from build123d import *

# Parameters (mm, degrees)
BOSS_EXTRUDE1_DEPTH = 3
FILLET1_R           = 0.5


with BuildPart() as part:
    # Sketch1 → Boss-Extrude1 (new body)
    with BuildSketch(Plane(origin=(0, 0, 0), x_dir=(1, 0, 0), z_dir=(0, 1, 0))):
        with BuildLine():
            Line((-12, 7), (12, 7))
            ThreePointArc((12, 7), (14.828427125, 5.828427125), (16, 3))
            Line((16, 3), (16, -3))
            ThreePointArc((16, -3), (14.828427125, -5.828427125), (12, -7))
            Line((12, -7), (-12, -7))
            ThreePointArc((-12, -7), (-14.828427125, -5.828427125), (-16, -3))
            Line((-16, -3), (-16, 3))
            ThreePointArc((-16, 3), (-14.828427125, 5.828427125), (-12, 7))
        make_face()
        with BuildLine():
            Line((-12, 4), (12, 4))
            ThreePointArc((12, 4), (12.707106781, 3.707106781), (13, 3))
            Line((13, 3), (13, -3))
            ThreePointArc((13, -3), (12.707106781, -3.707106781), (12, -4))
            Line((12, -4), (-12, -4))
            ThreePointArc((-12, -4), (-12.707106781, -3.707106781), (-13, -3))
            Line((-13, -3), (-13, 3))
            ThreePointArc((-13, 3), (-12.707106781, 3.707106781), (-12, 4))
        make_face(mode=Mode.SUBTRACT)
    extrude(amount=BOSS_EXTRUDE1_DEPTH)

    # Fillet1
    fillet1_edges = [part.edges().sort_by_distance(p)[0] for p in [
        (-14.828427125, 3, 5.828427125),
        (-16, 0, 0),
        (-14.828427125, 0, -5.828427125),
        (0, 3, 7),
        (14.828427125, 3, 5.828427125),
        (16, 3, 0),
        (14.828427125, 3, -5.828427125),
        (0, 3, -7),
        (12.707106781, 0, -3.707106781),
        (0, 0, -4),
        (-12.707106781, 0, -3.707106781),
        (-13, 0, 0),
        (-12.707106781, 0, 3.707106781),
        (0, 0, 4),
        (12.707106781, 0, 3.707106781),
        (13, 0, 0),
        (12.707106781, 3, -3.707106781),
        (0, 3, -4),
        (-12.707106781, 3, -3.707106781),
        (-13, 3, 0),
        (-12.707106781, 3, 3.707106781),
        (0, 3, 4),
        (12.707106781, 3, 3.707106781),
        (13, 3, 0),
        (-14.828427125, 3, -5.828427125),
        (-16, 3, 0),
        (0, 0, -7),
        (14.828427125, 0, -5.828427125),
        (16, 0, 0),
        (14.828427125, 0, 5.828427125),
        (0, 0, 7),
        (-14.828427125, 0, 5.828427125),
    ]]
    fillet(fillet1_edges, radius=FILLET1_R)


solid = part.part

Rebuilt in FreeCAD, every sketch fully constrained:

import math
import FreeCAD as App
import Part
import Sketcher

V = App.Vector
Q = App.Units.Quantity


def edges_at(feature, points):
    """Names of the edges that pass closest to the given points."""
    edges = feature.Shape.Edges
    near = lambda p: min(range(len(edges)), key=lambda i: edges[i].distToShape(Part.Vertex(*p))[0])
    return sorted({f"Edge{near(p) + 1}" for p in points})

doc = App.newDocument("Part")
body = doc.addObject("PartDesign::Body", "Body")

# Sketch on XZ plane
sketch1 = body.newObject("Sketcher::SketchObject", "Sketch")
sketch1.AttachmentSupport = (doc.getObject("XZ_Plane"), [""])
sketch1.MapMode = "FlatFace"
sketch1.addGeometry(Part.LineSegment(V(12, -7, 0), V(-12, -7, 0)), False)
sketch1.addGeometry(Part.ArcOfCircle(Part.Circle(V(-12, -3, 0), V(0, 0, 1), 4), math.radians(180), math.radians(270)), False)
sketch1.addGeometry(Part.LineSegment(V(-16, -3, 0), V(-16, 3, 0)), False)
sketch1.addGeometry(Part.ArcOfCircle(Part.Circle(V(-12, 3, 0), V(0, 0, 1), 4), math.radians(90), math.radians(180)), False)
sketch1.addGeometry(Part.LineSegment(V(-12, 7, 0), V(12, 7, 0)), False)
sketch1.addGeometry(Part.ArcOfCircle(Part.Circle(V(12, 3, 0), V(0, 0, 1), 4), math.radians(0), math.radians(90)), False)
sketch1.addGeometry(Part.LineSegment(V(16, 3, 0), V(16, -3, 0)), False)
sketch1.addGeometry(Part.ArcOfCircle(Part.Circle(V(12, -3, 0), V(0, 0, 1), 4), math.radians(-90), math.radians(0)), False)
sketch1.addGeometry(Part.LineSegment(V(-12, -4, 0), V(12, -4, 0)), False)
sketch1.addGeometry(Part.ArcOfCircle(Part.Circle(V(12, -3, 0), V(0, 0, 1), 1), math.radians(-90), math.radians(0)), False)
sketch1.addGeometry(Part.LineSegment(V(13, -3, 0), V(13, 3, 0)), False)
sketch1.addGeometry(Part.ArcOfCircle(Part.Circle(V(12, 3, 0), V(0, 0, 1), 1), math.radians(0), math.radians(90)), False)
sketch1.addGeometry(Part.LineSegment(V(12, 4, 0), V(-12, 4, 0)), False)
sketch1.addGeometry(Part.ArcOfCircle(Part.Circle(V(-12, 3, 0), V(0, 0, 1), 1), math.radians(90), math.radians(180)), False)
sketch1.addGeometry(Part.LineSegment(V(-13, 3, 0), V(-13, -3, 0)), False)
sketch1.addGeometry(Part.ArcOfCircle(Part.Circle(V(-12, -3, 0), V(0, 0, 1), 1), math.radians(-180), math.radians(-90)), False)
sketch1.addConstraint(Sketcher.Constraint("Tangent", 0, 2, 1, 2))
sketch1.addConstraint(Sketcher.Constraint("Tangent", 1, 1, 2, 1))
sketch1.addConstraint(Sketcher.Constraint("Tangent", 2, 2, 3, 2))
sketch1.addConstraint(Sketcher.Constraint("Tangent", 3, 1, 4, 1))
sketch1.addConstraint(Sketcher.Constraint("Tangent", 4, 2, 5, 2))
sketch1.addConstraint(Sketcher.Constraint("Tangent", 5, 1, 6, 1))
sketch1.addConstraint(Sketcher.Constraint("Tangent", 6, 2, 7, 2))
sketch1.addConstraint(Sketcher.Constraint("Tangent", 7, 1, 0, 1))
sketch1.addConstraint(Sketcher.Constraint("Tangent", 8, 2, 9, 1))
sketch1.addConstraint(Sketcher.Constraint("Tangent", 9, 2, 10, 1))
sketch1.addConstraint(Sketcher.Constraint("Tangent", 10, 2, 11, 1))
sketch1.addConstraint(Sketcher.Constraint("Tangent", 11, 2, 12, 1))
sketch1.addConstraint(Sketcher.Constraint("Tangent", 12, 2, 13, 1))
sketch1.addConstraint(Sketcher.Constraint("Tangent", 13, 2, 14, 1))
sketch1.addConstraint(Sketcher.Constraint("Tangent", 14, 2, 15, 1))
sketch1.addConstraint(Sketcher.Constraint("Tangent", 15, 2, 8, 1))
sketch1.addConstraint(Sketcher.Constraint("Horizontal", 0))
sketch1.addConstraint(Sketcher.Constraint("Vertical", 2))
sketch1.addConstraint(Sketcher.Constraint("Horizontal", 4))
sketch1.addConstraint(Sketcher.Constraint("Vertical", 6))
sketch1.addConstraint(Sketcher.Constraint("Horizontal", 8))
sketch1.addConstraint(Sketcher.Constraint("Vertical", 10))
sketch1.addConstraint(Sketcher.Constraint("Horizontal", 12))
sketch1.addConstraint(Sketcher.Constraint("Vertical", 14))
sketch1.addConstraint(Sketcher.Constraint("Coincident", 9, 3, 7, 3))
sketch1.addConstraint(Sketcher.Constraint("Coincident", 11, 3, 5, 3))
sketch1.addConstraint(Sketcher.Constraint("Coincident", 13, 3, 3, 3))
sketch1.addConstraint(Sketcher.Constraint("Equal", 1, 3))
sketch1.addConstraint(Sketcher.Constraint("Equal", 3, 5))
sketch1.addConstraint(Sketcher.Constraint("Equal", 5, 7))
sketch1.addConstraint(Sketcher.Constraint("Equal", 13, 15))
sketch1.addConstraint(Sketcher.Constraint("Symmetric", 1, 3, 5, 3, -1, 1))
sketch1.addConstraint(Sketcher.Constraint("Radius", 1, Q("4 mm")))
sketch1.addConstraint(Sketcher.Constraint("Radius", 9, Q("1 mm")))
sketch1.addConstraint(Sketcher.Constraint("DistanceX", 0, 2, 0, 1, Q("24 mm")))
sketch1.addConstraint(Sketcher.Constraint("DistanceY", 2, 1, 2, 2, Q("6 mm")))
pad1 = body.newObject("PartDesign::Pad", "Pad")
pad1.Profile = sketch1
pad1.Length = 3
pad1.Reversed = True
doc.recompute()

fillet = body.newObject("PartDesign::Fillet", "Fillet")
fillet.Base = (pad1, edges_at(pad1, [
    (-14.828, 3, 5.828),
    (-16, 0, 0),
    (-14.828, 0, -5.828),
    (0, 3, 7),
    (14.828, 3, 5.828),
    (16, 3, 0),
    (14.828, 3, -5.828),
    (0, 3, -7),
    (12.707, 0, -3.707),
    (0, 0, -4),
    (-12.707, 0, -3.707),
    (-13, 0, 0),
    (-12.707, 0, 3.707),
    (0, 0, 4),
    (12.707, 0, 3.707),
    (13, 0, 0),
    (12.707, 3, -3.707),
    (0, 3, -4),
    (-12.707, 3, -3.707),
    (-13, 3, 0),
    (-12.707, 3, 3.707),
    (0, 3, 4),
    (12.707, 3, 3.707),
    (13, 3, 0),
    (-14.828, 3, -5.828),
    (-16, 3, 0),
    (0, 0, -7),
    (14.828, 0, -5.828),
    (16, 0, 0),
    (14.828, 0, 5.828),
    (0, 0, 7),
    (-14.828, 0, 5.828),
]))
fillet.Radius = 0.5

doc.recompute()
